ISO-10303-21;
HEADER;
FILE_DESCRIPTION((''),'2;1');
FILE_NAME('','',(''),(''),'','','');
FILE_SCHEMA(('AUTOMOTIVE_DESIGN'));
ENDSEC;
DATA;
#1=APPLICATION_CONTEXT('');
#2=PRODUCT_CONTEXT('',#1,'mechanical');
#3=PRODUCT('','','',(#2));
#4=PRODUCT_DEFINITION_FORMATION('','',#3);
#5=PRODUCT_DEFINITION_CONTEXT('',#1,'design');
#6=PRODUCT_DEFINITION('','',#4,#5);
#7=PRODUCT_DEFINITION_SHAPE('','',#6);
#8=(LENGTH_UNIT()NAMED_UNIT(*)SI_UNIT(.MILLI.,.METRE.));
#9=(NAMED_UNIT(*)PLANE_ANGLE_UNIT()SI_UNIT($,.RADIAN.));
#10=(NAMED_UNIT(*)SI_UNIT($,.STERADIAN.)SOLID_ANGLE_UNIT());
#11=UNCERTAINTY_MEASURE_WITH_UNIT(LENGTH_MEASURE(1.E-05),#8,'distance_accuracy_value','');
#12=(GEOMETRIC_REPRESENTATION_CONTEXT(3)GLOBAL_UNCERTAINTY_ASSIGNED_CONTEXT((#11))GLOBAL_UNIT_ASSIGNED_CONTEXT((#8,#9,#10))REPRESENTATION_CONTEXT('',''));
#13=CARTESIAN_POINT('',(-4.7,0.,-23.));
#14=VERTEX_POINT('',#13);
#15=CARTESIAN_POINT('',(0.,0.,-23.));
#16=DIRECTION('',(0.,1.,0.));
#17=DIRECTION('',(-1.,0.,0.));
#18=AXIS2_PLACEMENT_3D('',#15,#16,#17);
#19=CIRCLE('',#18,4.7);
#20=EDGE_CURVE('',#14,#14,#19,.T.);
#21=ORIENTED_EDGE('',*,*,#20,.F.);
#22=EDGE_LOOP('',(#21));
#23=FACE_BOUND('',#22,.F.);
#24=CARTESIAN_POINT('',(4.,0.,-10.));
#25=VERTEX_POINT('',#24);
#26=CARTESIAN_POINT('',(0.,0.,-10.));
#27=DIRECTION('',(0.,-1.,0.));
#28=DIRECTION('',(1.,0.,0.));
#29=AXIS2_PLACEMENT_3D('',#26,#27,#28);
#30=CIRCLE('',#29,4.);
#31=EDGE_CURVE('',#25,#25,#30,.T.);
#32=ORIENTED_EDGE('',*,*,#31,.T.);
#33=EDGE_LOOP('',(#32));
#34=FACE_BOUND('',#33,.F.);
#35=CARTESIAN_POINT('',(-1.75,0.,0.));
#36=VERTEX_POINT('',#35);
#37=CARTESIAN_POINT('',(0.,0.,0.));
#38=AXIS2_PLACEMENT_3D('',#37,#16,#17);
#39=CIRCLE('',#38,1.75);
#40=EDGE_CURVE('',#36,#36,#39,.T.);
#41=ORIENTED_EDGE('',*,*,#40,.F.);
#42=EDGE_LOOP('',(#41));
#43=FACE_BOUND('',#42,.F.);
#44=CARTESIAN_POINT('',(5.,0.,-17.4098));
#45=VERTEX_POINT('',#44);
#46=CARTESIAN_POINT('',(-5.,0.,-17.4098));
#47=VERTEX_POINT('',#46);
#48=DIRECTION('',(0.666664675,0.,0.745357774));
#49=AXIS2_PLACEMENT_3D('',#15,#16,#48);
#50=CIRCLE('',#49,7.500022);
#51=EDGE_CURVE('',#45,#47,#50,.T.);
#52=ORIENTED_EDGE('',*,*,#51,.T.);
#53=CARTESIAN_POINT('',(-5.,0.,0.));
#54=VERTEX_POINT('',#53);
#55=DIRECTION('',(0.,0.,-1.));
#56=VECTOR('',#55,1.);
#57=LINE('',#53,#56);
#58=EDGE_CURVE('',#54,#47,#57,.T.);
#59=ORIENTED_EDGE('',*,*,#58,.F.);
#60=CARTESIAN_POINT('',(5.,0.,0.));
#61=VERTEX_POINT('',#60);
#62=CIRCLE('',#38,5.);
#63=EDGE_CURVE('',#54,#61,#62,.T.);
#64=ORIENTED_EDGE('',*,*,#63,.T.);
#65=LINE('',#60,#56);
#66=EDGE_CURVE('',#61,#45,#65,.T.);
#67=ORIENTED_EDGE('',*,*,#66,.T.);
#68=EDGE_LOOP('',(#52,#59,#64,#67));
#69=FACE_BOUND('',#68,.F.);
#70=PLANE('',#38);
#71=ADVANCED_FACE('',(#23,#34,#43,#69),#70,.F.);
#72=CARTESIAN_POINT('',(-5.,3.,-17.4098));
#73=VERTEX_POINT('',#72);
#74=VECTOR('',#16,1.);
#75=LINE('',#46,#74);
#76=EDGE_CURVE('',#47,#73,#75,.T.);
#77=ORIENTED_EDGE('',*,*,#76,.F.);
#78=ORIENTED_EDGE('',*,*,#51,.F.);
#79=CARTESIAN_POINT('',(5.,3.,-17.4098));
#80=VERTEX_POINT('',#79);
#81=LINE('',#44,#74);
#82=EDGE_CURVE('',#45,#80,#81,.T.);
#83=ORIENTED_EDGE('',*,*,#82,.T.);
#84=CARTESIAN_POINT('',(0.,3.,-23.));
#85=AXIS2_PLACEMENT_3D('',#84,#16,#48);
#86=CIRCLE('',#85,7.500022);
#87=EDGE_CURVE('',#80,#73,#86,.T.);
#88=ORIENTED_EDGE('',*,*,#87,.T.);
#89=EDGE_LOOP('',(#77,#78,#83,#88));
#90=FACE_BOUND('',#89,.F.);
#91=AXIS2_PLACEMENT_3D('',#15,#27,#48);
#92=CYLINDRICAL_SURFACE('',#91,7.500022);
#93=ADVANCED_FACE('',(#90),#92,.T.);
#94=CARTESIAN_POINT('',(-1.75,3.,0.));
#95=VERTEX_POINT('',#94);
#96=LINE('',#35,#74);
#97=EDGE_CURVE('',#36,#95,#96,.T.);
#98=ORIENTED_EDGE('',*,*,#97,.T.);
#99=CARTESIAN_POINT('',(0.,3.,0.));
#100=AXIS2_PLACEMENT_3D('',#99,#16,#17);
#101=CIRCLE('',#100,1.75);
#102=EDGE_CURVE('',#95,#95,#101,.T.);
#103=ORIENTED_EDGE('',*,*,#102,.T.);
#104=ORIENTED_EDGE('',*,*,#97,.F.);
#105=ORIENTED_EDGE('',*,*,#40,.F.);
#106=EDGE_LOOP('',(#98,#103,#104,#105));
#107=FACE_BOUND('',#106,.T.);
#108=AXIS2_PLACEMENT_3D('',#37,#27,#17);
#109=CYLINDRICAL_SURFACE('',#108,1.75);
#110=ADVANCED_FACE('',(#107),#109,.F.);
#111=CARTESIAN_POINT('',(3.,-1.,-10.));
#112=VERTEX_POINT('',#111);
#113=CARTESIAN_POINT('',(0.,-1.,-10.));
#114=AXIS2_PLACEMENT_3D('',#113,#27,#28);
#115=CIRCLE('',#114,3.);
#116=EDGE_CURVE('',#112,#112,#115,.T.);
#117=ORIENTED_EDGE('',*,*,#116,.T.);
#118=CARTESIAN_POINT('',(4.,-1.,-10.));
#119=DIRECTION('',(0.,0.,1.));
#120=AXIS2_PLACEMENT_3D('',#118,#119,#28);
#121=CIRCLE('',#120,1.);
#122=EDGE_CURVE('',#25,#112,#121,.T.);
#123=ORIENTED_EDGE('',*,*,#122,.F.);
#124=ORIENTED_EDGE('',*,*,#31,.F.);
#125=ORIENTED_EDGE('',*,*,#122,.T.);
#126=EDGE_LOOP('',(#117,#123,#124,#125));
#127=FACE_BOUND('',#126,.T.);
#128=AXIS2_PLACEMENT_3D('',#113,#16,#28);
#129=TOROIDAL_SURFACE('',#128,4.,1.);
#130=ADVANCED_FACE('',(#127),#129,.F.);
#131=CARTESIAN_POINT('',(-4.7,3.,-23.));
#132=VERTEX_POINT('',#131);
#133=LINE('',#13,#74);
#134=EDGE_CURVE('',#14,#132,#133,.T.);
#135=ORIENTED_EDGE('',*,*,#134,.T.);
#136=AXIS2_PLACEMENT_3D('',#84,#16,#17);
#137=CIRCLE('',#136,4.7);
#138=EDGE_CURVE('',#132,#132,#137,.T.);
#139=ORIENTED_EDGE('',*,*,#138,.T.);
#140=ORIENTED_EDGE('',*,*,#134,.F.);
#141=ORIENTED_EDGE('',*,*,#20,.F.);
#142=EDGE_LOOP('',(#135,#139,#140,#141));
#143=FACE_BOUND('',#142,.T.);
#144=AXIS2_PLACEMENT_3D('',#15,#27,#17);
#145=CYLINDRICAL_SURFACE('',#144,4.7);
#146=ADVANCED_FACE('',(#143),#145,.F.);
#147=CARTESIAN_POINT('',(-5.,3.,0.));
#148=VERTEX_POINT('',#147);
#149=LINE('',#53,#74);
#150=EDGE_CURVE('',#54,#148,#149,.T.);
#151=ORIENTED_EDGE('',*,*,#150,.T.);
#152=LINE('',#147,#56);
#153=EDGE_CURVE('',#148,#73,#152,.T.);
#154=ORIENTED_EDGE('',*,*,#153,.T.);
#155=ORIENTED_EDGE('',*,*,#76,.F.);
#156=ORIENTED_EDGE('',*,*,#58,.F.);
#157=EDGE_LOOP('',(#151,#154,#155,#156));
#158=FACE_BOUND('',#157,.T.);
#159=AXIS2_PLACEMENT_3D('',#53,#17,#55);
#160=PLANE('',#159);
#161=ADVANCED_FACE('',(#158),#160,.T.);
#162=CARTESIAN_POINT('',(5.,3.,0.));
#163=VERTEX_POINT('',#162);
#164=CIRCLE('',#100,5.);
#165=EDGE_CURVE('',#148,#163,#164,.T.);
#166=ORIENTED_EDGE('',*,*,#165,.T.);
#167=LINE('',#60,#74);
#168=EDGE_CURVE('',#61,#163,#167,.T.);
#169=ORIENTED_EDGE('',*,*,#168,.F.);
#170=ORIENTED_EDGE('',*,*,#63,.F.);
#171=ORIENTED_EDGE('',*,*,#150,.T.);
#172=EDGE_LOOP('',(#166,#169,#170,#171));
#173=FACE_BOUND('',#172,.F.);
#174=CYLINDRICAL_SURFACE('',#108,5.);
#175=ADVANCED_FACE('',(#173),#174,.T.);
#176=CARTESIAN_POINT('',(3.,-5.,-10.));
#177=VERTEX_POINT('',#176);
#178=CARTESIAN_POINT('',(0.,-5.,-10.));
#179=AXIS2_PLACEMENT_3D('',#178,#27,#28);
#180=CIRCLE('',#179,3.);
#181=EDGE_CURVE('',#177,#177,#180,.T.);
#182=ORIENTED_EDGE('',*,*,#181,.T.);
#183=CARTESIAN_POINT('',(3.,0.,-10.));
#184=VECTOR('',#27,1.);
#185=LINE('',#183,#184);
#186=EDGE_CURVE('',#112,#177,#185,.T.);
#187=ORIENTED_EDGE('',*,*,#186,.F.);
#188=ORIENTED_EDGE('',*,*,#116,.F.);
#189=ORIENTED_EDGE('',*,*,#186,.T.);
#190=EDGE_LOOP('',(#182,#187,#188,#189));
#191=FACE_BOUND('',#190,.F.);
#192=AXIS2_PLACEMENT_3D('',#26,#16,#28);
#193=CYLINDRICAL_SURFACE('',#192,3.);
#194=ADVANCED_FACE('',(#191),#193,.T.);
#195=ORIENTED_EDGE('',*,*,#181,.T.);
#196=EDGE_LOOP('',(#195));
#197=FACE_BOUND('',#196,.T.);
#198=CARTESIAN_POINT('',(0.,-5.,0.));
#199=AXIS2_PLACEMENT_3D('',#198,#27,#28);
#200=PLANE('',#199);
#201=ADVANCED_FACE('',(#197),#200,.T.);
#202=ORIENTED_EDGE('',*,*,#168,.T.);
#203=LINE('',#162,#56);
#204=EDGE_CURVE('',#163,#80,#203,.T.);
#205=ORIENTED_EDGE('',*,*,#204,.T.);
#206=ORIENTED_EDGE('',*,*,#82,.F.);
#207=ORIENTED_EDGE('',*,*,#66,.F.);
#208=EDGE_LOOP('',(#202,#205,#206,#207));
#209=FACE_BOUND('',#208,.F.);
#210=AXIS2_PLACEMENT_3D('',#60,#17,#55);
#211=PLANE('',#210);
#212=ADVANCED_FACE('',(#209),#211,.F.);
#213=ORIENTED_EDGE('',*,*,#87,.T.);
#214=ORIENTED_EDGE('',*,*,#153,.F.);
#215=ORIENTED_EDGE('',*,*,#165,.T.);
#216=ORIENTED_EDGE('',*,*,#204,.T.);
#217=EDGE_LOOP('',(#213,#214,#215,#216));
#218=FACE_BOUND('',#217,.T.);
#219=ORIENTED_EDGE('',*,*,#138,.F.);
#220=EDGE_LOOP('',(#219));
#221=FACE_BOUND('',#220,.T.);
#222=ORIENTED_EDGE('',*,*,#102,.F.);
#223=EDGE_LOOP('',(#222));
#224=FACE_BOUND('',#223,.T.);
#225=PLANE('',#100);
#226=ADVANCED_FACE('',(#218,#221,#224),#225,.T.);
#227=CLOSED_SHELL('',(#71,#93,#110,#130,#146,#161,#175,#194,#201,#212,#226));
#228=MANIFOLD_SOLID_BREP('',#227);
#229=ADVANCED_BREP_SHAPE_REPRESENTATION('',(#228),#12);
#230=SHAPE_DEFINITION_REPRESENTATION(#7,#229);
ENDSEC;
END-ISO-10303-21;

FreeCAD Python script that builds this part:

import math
import FreeCAD as App
import Part
import Sketcher

V = App.Vector
Q = App.Units.Quantity


def edges_at(feature, points):
    """Names of the edges that pass closest to the given points."""
    edges = feature.Shape.Edges
    near = lambda p: min(range(len(edges)), key=lambda i: edges[i].distToShape(Part.Vertex(*p))[0])
    return sorted({f"Edge{near(p) + 1}" for p in points})

doc = App.newDocument("Part")
body = doc.addObject("PartDesign::Body", "Body")

# Sketch on XZ plane
sketch1 = body.newObject("Sketcher::SketchObject", "Sketch")
sketch1.AttachmentSupport = (doc.getObject("XZ_Plane"), [""])
sketch1.MapMode = "FlatFace"
sketch1.addGeometry(Part.LineSegment(V(-5, -17.4, 0), V(-5, 0, 0)), False)
sketch1.addGeometry(Part.ArcOfCircle(Part.Circle(V(0, 0, 0), V(0, 0, 1), 5), math.radians(0), math.radians(180)), False)
sketch1.addGeometry(Part.LineSegment(V(5, 0, 0), V(5, -17.4, 0)), False)
sketch1.addGeometry(Part.ArcOfCircle(Part.Circle(V(0, -23, 0), V(0, 0, 1), 7.5), math.radians(132), math.radians(408)), False)
sketch1.addGeometry(Part.Circle(V(0, -23, 0), V(0, 0, 1), 4.7), False)
sketch1.addGeometry(Part.Circle(V(0, 0, 0), V(0, 0, 1), 1.8), False)
sketch1.addConstraint(Sketcher.Constraint("Tangent", 0, 2, 1, 2))
sketch1.addConstraint(Sketcher.Constraint("Tangent", 1, 1, 2, 1))
sketch1.addConstraint(Sketcher.Constraint("Coincident", 2, 2, 3, 2))
sketch1.addConstraint(Sketcher.Constraint("Coincident", 3, 1, 0, 1))
sketch1.addConstraint(Sketcher.Constraint("Vertical", 0))
sketch1.addConstraint(Sketcher.Constraint("Vertical", 2))
sketch1.addConstraint(Sketcher.Constraint("Coincident", 1, 3, -1, 1))
sketch1.addConstraint(Sketcher.Constraint("Coincident", 5, 3, -1, 1))
sketch1.addConstraint(Sketcher.Constraint("Coincident", 4, 3, 3, 3))
sketch1.addConstraint(Sketcher.Constraint("PointOnObject", 3, 3, -2))
sketch1.addConstraint(Sketcher.Constraint("Radius", 1, Q("5 mm")))
sketch1.addConstraint(Sketcher.Constraint("Diameter", 4, Q("9.4 mm")))
sketch1.addConstraint(Sketcher.Constraint("Diameter", 5, Q("3.5 mm")))
sketch1.addConstraint(Sketcher.Constraint("Radius", 3, Q("7.5 mm")))
sketch1.addConstraint(Sketcher.Constraint("DistanceY", 3, 3, -1, 1, Q("23 mm")))
pad1 = body.newObject("PartDesign::Pad", "Pad")
pad1.Profile = sketch1
pad1.Length = 3
pad1.Reversed = True

# Sketch on XZ plane
sketch2 = body.newObject("Sketcher::SketchObject", "Sketch001")
sketch2.AttachmentSupport = (doc.getObject("XZ_Plane"), [""])
sketch2.MapMode = "FlatFace"
sketch2.addGeometry(Part.Circle(V(0, -10, 0), V(0, 0, 1), 3), False)
sketch2.addConstraint(Sketcher.Constraint("PointOnObject", 0, 3, -2))
sketch2.addConstraint(Sketcher.Constraint("Diameter", 0, Q("6 mm")))
sketch2.addConstraint(Sketcher.Constraint("DistanceY", 0, 3, -1, 1, Q("10 mm")))
pad2 = body.newObject("PartDesign::Pad", "Pad001")
pad2.Profile = sketch2
pad2.Length = 5
doc.recompute()

fillet = body.newObject("PartDesign::Fillet", "Fillet")
fillet.Base = (pad2, edges_at(pad2, [(-3, 0, -10)]))
fillet.Radius = 1

doc.recompute()
